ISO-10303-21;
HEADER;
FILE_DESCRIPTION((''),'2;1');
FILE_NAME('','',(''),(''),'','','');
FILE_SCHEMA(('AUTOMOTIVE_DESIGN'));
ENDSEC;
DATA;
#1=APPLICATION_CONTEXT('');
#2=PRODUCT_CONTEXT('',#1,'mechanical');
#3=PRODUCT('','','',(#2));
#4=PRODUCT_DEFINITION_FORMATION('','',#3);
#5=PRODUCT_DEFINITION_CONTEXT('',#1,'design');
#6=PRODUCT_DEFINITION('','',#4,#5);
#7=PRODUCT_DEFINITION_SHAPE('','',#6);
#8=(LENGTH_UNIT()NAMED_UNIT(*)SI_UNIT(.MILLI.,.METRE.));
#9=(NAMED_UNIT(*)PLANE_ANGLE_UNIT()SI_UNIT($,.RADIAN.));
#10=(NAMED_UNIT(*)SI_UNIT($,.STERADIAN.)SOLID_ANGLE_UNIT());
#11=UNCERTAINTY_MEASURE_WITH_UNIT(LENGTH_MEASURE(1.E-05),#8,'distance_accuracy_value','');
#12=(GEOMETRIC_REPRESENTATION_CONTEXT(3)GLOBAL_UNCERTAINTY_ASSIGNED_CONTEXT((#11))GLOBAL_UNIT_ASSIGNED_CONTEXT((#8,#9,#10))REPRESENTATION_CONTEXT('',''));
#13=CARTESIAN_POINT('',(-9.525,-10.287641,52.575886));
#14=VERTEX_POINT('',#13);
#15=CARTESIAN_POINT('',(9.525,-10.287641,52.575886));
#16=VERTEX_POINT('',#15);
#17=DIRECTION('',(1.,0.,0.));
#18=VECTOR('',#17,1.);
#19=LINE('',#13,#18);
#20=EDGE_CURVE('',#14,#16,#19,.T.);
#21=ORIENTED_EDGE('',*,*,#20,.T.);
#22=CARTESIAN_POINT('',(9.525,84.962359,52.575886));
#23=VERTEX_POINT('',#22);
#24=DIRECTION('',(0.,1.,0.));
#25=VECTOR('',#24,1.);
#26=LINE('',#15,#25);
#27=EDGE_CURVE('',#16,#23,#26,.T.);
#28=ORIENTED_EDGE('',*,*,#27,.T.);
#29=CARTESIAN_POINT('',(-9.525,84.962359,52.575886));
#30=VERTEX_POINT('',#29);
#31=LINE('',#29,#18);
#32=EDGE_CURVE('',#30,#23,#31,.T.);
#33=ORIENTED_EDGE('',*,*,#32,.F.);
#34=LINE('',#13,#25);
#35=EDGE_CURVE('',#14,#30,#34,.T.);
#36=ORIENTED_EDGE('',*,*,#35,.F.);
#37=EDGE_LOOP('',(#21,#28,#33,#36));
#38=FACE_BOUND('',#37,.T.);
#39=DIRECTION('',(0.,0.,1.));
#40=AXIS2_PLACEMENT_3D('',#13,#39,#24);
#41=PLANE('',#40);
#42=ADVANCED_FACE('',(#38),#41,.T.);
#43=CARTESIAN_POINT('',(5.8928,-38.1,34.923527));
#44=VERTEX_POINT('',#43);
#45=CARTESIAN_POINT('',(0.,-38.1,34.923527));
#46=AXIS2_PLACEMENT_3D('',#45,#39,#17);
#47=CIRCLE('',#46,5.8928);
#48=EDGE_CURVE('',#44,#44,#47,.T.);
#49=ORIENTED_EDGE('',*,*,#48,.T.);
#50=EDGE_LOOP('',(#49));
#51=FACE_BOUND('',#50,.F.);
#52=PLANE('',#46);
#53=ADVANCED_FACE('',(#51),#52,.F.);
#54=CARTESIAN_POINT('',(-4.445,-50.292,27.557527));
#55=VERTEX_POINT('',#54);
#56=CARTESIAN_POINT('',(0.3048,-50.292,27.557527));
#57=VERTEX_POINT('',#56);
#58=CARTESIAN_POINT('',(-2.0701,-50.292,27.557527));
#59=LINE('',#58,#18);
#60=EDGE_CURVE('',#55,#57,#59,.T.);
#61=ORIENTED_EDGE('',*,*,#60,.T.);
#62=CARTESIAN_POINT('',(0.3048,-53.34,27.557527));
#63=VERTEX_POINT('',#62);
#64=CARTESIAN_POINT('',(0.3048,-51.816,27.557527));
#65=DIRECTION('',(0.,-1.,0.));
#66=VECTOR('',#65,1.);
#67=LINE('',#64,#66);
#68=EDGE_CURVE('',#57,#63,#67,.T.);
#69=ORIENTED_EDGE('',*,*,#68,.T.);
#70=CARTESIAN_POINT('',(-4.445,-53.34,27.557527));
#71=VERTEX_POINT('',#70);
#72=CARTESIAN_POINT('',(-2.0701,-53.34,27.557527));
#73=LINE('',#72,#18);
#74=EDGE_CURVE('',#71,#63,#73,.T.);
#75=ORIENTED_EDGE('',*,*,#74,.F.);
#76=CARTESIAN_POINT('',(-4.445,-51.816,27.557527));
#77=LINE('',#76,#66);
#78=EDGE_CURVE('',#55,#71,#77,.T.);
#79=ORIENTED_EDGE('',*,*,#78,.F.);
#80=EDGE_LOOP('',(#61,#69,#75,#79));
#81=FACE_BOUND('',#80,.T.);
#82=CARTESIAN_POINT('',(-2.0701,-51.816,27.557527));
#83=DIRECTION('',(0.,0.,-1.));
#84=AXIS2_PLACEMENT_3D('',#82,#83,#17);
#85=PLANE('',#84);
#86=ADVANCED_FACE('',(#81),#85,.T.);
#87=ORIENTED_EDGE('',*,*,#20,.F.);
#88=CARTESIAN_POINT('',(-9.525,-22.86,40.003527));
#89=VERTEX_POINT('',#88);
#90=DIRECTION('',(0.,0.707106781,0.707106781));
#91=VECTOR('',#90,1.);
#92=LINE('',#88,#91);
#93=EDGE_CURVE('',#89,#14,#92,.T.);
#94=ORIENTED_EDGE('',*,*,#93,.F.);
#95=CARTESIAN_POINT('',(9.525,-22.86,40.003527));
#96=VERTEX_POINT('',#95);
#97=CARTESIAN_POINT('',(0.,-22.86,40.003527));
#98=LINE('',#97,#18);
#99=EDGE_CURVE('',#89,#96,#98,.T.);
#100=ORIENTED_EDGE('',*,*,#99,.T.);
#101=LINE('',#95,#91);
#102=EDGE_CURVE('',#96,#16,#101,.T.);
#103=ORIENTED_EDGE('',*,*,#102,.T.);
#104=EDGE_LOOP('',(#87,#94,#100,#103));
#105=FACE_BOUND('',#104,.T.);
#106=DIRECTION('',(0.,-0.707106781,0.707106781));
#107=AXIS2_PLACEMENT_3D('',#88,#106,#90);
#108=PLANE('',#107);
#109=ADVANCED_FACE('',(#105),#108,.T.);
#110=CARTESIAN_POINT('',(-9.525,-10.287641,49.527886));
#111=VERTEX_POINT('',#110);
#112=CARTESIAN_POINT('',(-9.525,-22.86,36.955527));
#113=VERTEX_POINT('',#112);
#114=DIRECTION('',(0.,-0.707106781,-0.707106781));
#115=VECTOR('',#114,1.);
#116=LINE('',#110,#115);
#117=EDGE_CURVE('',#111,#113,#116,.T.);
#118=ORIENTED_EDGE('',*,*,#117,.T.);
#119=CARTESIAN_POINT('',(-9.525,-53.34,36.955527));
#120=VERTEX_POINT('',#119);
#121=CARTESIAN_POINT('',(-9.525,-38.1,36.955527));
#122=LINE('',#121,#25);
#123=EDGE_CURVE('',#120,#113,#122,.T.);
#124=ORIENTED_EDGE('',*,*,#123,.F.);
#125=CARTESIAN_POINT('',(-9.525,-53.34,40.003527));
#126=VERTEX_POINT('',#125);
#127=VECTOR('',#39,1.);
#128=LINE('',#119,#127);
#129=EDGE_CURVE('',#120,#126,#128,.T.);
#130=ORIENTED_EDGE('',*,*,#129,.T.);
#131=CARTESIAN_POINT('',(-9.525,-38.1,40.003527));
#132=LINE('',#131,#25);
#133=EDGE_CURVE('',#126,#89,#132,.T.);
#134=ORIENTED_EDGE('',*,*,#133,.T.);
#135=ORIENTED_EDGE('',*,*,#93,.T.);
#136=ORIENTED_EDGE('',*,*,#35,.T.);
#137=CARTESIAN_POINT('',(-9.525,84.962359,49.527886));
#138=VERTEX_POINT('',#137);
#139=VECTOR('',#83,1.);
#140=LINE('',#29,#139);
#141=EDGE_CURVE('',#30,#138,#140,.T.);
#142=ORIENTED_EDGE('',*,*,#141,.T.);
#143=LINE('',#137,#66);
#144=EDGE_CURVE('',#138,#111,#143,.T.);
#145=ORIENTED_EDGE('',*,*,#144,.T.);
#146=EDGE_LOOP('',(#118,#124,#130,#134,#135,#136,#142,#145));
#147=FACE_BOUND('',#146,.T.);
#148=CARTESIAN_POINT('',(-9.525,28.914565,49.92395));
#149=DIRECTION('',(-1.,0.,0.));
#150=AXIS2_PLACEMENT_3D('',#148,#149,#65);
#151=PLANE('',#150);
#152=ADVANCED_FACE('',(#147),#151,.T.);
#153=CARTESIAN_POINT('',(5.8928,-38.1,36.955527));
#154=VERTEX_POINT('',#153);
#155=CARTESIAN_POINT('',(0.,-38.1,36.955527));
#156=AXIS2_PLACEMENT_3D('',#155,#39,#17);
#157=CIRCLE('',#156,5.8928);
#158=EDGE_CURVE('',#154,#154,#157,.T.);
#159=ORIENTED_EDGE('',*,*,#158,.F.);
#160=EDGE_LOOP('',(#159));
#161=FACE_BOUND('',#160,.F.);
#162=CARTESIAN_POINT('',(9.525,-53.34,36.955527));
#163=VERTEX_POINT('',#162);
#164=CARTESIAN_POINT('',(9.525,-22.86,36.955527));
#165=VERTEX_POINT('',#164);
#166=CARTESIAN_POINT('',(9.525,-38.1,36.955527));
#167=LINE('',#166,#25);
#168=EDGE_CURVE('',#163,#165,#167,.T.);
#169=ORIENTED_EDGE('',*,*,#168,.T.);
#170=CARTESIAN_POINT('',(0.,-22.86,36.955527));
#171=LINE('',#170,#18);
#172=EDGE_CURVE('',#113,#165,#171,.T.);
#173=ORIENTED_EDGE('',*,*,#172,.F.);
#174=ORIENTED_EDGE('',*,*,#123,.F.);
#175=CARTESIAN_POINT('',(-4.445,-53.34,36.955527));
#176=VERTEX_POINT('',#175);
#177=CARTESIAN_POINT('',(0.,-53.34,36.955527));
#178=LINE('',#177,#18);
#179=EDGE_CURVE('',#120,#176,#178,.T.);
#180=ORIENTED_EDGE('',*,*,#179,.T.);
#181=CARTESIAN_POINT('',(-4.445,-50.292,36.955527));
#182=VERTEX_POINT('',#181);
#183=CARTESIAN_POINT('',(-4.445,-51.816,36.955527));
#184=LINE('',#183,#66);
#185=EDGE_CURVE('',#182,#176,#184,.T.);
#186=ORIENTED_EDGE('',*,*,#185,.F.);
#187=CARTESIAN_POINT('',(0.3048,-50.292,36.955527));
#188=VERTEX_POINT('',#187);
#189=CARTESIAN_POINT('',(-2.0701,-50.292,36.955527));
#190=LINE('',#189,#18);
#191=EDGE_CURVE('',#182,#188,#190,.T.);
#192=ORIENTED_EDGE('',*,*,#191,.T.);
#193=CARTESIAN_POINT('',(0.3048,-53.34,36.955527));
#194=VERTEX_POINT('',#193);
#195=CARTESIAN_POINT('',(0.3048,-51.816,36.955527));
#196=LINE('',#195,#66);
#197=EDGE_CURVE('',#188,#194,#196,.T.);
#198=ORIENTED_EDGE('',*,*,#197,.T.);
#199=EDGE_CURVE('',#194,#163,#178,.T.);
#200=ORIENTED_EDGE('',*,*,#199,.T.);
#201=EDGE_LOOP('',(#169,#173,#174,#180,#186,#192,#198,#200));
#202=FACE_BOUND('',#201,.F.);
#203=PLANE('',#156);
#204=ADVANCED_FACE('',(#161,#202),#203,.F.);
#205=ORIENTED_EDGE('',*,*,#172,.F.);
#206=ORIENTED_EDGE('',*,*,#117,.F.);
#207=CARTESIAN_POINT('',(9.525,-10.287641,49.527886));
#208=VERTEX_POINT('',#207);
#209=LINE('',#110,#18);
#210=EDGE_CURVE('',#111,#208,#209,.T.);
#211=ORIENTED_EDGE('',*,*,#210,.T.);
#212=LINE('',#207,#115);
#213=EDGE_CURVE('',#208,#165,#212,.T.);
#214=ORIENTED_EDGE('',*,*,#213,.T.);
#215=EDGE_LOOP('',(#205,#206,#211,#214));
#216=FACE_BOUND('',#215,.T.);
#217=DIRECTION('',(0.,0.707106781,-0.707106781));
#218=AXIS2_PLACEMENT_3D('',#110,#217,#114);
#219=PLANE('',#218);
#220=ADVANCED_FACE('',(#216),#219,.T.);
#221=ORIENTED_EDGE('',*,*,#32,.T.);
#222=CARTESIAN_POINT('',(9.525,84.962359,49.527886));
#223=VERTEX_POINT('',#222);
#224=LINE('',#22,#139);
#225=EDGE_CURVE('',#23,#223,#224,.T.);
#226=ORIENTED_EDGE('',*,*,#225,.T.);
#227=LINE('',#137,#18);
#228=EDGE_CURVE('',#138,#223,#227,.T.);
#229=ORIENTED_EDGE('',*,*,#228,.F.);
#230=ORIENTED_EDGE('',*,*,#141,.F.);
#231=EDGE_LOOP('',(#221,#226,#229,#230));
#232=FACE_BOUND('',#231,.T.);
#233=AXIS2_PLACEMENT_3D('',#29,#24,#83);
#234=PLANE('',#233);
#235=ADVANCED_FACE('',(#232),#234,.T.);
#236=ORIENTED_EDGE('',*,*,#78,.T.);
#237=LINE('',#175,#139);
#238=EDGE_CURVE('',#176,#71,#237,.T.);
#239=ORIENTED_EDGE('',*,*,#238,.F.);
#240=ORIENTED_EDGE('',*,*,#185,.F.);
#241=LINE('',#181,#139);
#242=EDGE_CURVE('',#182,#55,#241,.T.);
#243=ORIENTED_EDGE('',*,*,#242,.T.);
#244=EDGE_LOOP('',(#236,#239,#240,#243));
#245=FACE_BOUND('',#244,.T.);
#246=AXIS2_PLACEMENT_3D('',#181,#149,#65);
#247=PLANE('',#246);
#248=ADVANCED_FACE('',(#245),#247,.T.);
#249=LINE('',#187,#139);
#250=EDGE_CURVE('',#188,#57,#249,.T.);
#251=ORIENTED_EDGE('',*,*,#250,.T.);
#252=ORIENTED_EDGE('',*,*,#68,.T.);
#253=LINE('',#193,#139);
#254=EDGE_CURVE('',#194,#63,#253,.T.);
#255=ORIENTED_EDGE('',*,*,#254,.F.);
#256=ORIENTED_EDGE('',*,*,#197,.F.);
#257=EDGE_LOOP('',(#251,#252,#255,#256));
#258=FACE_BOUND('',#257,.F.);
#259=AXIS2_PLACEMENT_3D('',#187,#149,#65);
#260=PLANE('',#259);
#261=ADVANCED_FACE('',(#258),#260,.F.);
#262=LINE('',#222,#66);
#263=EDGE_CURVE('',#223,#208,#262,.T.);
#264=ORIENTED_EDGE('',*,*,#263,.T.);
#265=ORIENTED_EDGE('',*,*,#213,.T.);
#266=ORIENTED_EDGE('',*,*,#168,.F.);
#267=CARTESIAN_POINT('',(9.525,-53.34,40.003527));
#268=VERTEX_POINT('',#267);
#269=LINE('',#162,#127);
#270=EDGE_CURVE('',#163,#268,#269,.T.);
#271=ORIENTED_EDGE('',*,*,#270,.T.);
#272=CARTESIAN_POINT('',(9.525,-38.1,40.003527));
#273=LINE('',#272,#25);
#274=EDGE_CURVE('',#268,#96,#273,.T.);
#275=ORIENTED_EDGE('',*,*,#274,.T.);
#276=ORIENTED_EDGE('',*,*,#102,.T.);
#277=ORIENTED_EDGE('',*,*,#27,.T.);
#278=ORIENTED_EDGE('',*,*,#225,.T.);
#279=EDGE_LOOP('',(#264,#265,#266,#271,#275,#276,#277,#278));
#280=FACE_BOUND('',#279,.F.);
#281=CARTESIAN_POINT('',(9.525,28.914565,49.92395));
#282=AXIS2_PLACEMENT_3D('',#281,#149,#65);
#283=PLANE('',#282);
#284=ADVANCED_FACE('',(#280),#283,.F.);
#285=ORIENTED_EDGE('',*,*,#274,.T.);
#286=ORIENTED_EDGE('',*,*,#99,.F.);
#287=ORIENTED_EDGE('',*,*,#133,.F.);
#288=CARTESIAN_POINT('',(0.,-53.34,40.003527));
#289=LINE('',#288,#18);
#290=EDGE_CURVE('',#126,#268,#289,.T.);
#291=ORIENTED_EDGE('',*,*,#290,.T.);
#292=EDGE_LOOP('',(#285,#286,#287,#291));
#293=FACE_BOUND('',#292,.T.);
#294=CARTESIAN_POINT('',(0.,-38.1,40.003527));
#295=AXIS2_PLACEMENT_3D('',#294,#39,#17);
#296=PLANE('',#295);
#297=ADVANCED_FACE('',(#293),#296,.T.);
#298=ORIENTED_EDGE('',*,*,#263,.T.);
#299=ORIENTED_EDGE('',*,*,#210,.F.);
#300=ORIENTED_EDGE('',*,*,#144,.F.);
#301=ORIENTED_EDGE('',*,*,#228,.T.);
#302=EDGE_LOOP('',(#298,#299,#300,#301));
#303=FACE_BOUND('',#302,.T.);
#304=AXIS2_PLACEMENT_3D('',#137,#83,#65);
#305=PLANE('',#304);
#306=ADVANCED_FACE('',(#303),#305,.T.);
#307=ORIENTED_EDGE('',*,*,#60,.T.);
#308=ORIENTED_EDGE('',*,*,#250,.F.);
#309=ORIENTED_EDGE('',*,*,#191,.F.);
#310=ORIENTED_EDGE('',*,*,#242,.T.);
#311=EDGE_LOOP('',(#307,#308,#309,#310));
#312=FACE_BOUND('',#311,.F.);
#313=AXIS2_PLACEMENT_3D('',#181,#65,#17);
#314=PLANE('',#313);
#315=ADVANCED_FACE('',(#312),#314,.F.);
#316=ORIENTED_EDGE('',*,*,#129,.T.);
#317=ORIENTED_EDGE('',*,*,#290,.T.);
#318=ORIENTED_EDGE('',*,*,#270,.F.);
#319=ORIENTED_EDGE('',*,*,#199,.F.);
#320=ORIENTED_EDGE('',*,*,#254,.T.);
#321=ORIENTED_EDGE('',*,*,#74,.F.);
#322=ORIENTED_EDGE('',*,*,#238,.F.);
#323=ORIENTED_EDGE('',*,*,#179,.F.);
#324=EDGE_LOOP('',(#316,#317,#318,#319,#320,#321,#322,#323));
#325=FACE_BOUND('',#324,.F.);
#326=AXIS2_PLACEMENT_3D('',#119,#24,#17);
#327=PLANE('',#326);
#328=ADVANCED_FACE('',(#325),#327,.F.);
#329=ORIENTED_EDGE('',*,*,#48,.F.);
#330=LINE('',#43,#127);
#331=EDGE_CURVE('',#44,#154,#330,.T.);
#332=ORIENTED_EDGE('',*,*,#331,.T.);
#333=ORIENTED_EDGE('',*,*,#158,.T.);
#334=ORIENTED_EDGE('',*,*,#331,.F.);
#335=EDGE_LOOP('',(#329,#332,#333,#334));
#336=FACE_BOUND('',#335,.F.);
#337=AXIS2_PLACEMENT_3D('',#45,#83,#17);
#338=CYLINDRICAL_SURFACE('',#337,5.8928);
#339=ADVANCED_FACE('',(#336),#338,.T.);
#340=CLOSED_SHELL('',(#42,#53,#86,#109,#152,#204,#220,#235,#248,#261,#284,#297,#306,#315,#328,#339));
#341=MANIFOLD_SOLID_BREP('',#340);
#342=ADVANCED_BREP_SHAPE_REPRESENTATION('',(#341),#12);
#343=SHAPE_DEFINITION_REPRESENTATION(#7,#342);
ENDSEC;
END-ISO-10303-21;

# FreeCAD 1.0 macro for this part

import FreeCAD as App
import Part
import Sketcher

V = App.Vector
Q = App.Units.Quantity


def add_polygon(sketch, points):
    """Adds a closed chain of lines whose ends are joined by coincident constraints."""
    first, n = sketch.GeometryCount, len(points)
    for a, b in zip(points, points[1:] + points[:1]):
        sketch.addGeometry(Part.LineSegment(App.Vector(*a, 0), App.Vector(*b, 0)), False)
    for i in range(n):
        sketch.addConstraint(Sketcher.Constraint("Coincident", first + i, 2, first + (i + 1) % n, 1))

doc = App.newDocument("Part")
body = doc.addObject("PartDesign::Body", "Body")

# Sketch on XY plane
sketch1 = body.newObject("Sketcher::SketchObject", "Sketch")
sketch1.AttachmentSupport = (doc.getObject("XY_Plane"), [""])
sketch1.MapMode = "FlatFace"
sketch1.AttachmentOffset = App.Placement(V(0, 0, 34.923527), App.Rotation())
sketch1.addGeometry(Part.Circle(V(0, -38.1, 0), V(0, 0, 1), 5.8928), False)
sketch1.addConstraint([
    Sketcher.Constraint("PointOnObject", 0, 3, -2),
    Sketcher.Constraint("Diameter", 0, Q("0.464 in")),
    Sketcher.Constraint("DistanceY", 0, 3, -1, 1, Q("1.5 in")),
])
pad1 = body.newObject("PartDesign::Pad", "Pad")
pad1.Profile = sketch1
pad1.Length = Q("0.08 in")

# Sketch on XY plane
sketch2 = body.newObject("Sketcher::SketchObject", "Sketch001")
sketch2.AttachmentSupport = (doc.getObject("XY_Plane"), [""])
sketch2.MapMode = "FlatFace"
sketch2.AttachmentOffset = App.Placement(V(0, 0, 36.955527), App.Rotation())
add_polygon(sketch2, [(-9.525, -22.86), (-9.525, -53.34), (9.525, -53.34), (9.525, -22.86)])  # lines 0-3
sketch2.addConstraint([
    Sketcher.Constraint("Vertical", 0),
    Sketcher.Constraint("Horizontal", 1),
    Sketcher.Constraint("Vertical", 2),
    Sketcher.Constraint("Horizontal", 3),
    Sketcher.Constraint("DistanceY", 0, 2, 0, 1, Q("1.2 in")),
    Sketcher.Constraint("DistanceX", 1, 1, 1, 2, Q("0.75 in")),
    Sketcher.Constraint("DistanceY", 0, 2, -1, 1, Q("2.1 in")),
    Sketcher.Constraint("DistanceX", 0, 2, -1, 1, Q("0.375 in")),
])
pad2 = body.newObject("PartDesign::Pad", "Pad001")
pad2.Profile = sketch2
pad2.Length = Q("0.12 in")

# Sketch on YZ plane
sketch3 = body.newObject("Sketcher::SketchObject", "Sketch002")
sketch3.AttachmentSupport = (doc.getObject("YZ_Plane"), [""])
sketch3.MapMode = "FlatFace"
sketch3.AttachmentOffset = App.Placement(V(0, 0, -0.375 * 25.4), App.Rotation())
add_polygon(sketch3, [(-22.86, 40.003527), (-10.287641, 52.575886), (84.962359, 52.575886), (84.962359, 49.527886), (-10.287641, 49.527886), (-22.86, 36.955527)])  # lines 0-5
sketch3.addConstraint([
    Sketcher.Constraint("Horizontal", 1),
    Sketcher.Constraint("Vertical", 2),
    Sketcher.Constraint("Horizontal", 3),
    Sketcher.Constraint("Vertical", 5),
    Sketcher.Constraint("Parallel", 0, 4),
    Sketcher.Constraint("Vertical", 0, 2, 3, 2),
    Sketcher.Constraint("Angle", 0, Q("45 deg")),
    Sketcher.Constraint("Distance", 0, Q("0.7 in")),
    Sketcher.Constraint("DistanceX", 1, 1, 1, 2, Q("3.75 in")),
    Sketcher.Constraint("DistanceY", 2, 2, 2, 1, Q("0.12 in")),
    Sketcher.Constraint("DistanceX", 4, 2, -1, 1, Q("0.9 in")),
    Sketcher.Constraint("DistanceY", -1, 1, 0, 2, 52.575886),
])
pad3 = body.newObject("PartDesign::Pad", "Pad002")
pad3.Profile = sketch3
pad3.Length = Q("0.75 in")

# Sketch on XY plane
sketch4 = body.newObject("Sketcher::SketchObject", "Sketch003")
sketch4.AttachmentSupport = (doc.getObject("XY_Plane"), [""])
sketch4.MapMode = "FlatFace"
sketch4.AttachmentOffset = App.Placement(V(0, 0, 36.955527), App.Rotation())
add_polygon(sketch4, [(-4.445, -53.34), (-4.445, -50.292), (0.3048, -50.292), (0.3048, -53.34)])  # lines 0-3
sketch4.addConstraint([
    Sketcher.Constraint("Vertical", 0),
    Sketcher.Constraint("Horizontal", 1),
    Sketcher.Constraint("Vertical", 2),
    Sketcher.Constraint("Horizontal", 3),
    Sketcher.Constraint("DistanceY", 0, 1, 0, 2, Q("0.12 in")),
    Sketcher.Constraint("DistanceY", 2, 2, -1, 1, Q("2.1 in")),
    Sketcher.Constraint("DistanceX", 1, 1, 1, 2, Q("0.187 in")),
    Sketcher.Constraint("DistanceX", 0, 2, -1, 1, Q("0.175 in")),
])
pad4 = body.newObject("PartDesign::Pad", "Pad003")
pad4.Profile = sketch4
pad4.Length = Q("0.37 in")
pad4.Reversed = True

doc.recompute()
